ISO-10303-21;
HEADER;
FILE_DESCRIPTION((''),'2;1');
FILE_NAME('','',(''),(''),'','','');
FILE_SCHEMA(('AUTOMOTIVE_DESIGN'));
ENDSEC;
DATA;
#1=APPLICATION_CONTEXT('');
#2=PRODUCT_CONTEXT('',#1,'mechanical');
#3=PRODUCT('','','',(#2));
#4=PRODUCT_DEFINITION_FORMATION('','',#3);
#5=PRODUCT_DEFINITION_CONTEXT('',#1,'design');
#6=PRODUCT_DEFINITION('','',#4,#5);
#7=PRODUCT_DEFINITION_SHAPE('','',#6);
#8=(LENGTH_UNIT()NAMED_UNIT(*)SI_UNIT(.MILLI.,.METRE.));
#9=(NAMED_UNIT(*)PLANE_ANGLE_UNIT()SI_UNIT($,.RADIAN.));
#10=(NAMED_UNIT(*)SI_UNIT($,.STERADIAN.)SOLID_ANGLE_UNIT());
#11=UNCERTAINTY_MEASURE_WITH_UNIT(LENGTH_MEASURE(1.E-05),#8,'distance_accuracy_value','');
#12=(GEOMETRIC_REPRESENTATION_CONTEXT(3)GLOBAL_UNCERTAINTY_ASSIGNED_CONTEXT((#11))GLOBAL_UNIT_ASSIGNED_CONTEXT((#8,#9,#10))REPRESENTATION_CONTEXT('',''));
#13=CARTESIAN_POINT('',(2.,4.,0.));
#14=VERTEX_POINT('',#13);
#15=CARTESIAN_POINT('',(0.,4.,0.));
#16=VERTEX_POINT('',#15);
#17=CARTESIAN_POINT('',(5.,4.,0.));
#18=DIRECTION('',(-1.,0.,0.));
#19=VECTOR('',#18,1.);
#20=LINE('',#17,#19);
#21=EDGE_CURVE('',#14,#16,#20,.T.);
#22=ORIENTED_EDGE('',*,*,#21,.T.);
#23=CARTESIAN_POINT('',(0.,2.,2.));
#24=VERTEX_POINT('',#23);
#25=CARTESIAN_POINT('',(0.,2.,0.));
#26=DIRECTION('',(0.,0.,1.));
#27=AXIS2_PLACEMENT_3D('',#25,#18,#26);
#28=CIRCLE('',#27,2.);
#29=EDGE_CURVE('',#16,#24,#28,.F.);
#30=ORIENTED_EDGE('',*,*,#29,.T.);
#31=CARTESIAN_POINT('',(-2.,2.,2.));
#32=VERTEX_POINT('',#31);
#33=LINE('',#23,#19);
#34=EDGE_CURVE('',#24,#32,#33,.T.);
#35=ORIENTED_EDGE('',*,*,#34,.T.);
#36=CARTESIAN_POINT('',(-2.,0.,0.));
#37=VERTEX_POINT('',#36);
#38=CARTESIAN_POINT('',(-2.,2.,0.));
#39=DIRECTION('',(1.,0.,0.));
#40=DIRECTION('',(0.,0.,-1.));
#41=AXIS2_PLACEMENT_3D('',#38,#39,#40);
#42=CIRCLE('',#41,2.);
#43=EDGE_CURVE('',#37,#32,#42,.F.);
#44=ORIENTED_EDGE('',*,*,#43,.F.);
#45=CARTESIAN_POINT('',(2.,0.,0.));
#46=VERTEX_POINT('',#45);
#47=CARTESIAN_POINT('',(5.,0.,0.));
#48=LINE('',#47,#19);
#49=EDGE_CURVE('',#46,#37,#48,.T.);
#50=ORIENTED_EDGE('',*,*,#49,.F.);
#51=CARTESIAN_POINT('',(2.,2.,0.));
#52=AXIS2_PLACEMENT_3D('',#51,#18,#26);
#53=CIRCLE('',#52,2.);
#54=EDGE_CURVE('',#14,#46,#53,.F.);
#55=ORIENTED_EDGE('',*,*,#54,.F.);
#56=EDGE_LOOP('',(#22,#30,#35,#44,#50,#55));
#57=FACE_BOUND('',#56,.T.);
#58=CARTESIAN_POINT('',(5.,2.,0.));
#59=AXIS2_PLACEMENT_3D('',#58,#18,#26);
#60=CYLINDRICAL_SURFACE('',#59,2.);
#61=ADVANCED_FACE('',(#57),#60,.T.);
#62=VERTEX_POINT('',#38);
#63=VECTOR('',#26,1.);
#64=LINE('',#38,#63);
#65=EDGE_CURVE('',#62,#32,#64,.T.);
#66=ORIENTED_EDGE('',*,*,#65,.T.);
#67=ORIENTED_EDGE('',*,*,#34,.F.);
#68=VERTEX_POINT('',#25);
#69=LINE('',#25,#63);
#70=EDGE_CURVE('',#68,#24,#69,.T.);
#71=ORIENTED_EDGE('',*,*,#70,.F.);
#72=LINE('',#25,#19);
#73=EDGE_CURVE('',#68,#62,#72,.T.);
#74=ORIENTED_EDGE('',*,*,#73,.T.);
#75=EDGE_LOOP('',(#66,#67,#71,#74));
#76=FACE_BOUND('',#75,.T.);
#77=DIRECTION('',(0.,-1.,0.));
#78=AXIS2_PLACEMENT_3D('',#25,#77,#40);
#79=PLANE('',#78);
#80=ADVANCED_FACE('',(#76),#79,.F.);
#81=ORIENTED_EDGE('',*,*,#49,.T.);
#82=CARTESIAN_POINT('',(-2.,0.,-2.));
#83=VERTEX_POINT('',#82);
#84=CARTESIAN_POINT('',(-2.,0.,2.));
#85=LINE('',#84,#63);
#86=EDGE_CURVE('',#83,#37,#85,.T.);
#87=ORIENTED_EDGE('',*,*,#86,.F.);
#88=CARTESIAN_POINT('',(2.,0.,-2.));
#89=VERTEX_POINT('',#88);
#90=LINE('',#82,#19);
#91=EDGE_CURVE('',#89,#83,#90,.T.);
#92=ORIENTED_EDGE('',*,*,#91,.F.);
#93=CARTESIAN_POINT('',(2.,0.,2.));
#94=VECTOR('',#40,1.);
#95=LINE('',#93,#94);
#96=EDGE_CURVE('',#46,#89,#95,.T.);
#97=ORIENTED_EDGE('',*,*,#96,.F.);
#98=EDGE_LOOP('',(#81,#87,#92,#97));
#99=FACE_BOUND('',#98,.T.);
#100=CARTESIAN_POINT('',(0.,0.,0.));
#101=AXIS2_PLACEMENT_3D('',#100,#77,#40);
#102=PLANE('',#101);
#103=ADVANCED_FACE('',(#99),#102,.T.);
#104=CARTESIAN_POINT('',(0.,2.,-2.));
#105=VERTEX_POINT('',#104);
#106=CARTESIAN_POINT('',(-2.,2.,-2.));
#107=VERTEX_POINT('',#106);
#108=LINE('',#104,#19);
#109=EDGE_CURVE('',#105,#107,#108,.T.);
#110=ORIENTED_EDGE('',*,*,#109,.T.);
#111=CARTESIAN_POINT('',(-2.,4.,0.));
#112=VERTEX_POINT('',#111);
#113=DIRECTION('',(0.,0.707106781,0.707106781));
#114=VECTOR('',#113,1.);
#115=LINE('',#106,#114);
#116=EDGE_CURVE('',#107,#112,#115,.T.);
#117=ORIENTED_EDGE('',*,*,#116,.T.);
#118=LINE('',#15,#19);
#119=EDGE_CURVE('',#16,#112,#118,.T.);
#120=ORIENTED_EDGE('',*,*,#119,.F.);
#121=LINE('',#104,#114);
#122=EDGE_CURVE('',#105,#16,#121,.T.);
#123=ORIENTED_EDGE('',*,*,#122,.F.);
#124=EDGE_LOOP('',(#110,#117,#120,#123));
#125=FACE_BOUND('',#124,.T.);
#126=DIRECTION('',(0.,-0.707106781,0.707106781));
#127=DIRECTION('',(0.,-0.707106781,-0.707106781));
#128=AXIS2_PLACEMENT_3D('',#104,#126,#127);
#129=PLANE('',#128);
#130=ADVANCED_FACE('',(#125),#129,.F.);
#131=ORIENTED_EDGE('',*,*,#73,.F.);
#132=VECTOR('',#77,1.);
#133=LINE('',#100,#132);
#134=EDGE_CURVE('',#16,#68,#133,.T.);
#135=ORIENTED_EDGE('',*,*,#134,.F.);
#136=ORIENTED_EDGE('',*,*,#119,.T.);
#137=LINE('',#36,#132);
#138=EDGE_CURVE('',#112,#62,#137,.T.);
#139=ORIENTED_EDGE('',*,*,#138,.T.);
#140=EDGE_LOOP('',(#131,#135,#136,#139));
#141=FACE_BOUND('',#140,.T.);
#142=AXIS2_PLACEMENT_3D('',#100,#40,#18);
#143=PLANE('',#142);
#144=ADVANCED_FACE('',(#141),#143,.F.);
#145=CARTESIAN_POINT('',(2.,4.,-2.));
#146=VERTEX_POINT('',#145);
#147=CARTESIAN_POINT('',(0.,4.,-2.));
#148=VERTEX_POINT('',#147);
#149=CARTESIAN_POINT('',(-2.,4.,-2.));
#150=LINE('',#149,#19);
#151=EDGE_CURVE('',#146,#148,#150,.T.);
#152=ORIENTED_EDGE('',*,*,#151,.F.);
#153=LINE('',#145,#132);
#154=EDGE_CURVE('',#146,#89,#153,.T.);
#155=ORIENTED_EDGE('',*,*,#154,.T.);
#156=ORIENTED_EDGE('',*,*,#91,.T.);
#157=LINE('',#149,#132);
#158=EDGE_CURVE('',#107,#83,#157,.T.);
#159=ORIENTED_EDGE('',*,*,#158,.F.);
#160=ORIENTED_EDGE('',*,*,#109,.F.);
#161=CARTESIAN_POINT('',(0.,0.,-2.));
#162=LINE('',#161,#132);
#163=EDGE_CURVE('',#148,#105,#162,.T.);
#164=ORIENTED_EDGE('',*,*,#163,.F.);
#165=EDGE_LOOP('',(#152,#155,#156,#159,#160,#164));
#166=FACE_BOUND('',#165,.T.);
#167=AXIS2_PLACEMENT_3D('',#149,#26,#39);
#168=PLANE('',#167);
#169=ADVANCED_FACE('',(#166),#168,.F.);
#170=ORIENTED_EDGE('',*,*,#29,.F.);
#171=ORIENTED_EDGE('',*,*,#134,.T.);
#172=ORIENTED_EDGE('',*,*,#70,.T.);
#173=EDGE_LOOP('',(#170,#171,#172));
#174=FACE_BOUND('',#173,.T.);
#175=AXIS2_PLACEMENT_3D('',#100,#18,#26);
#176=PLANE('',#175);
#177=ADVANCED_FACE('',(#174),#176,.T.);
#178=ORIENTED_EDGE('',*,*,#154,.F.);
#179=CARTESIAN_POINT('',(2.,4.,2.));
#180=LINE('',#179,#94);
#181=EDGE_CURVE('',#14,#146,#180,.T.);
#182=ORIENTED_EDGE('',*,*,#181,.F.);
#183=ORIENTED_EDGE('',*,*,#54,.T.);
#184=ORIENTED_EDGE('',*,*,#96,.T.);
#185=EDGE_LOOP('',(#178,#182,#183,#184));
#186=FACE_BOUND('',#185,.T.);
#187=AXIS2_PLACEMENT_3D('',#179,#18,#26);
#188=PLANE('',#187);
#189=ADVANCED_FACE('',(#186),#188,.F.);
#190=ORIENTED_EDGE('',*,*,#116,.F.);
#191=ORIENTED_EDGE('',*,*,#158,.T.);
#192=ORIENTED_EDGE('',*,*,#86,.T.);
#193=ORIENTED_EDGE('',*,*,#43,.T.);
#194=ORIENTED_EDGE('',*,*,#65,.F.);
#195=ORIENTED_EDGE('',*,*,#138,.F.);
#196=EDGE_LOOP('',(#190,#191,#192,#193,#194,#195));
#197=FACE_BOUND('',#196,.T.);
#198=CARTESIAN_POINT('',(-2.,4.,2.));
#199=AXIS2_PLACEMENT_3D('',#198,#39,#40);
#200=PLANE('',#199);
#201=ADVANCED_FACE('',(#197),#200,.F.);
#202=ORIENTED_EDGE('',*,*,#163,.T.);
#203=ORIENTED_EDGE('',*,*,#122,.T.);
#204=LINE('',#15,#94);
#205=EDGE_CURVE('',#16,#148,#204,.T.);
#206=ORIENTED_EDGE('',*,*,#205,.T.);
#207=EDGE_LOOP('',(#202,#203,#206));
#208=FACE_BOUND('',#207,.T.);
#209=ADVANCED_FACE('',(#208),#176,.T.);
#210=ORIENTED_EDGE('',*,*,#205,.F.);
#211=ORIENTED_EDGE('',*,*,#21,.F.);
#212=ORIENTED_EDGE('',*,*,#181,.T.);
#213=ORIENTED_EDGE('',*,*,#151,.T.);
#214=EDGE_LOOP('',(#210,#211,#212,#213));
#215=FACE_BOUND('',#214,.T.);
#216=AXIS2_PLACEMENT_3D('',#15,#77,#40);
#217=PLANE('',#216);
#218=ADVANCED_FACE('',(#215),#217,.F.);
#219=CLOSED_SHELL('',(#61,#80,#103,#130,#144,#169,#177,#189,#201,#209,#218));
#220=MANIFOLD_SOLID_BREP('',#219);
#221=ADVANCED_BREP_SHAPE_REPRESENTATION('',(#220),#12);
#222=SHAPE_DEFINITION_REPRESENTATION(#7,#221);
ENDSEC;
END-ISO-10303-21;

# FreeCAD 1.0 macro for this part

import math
import FreeCAD as App
import Part
import Sketcher
from FreeCAD import Vector
Q = App.Units.Quantity

doc = App.newDocument("Part")
body = doc.addObject("PartDesign::Body", "Body")

# Sketch on XZ plane
sketch1 = body.newObject("Sketcher::SketchObject", "Sketch")
sketch1.AttachmentSupport = (doc.getObject("XZ_Plane"), [""])
sketch1.MapMode = "FlatFace"
sketch1.addGeometry([
    Part.LineSegment(Vector(-2, -2, 0), Vector(-2, 2, 0)),
    Part.LineSegment(Vector(-2, 2, 0), Vector(2, 2, 0)),
    Part.LineSegment(Vector(2, 2, 0), Vector(2, -2, 0)),
    Part.LineSegment(Vector(2, -2, 0), Vector(-2, -2, 0)),
], False)
sketch1.addConstraint([
    Sketcher.Constraint("Coincident", 0, 2, 1, 1),
    Sketcher.Constraint("Coincident", 1, 2, 2, 1),
    Sketcher.Constraint("Coincident", 2, 2, 3, 1),
    Sketcher.Constraint("Coincident", 3, 2, 0, 1),
    Sketcher.Constraint("Vertical", 0),
    Sketcher.Constraint("Horizontal", 1),
    Sketcher.Constraint("Vertical", 2),
    Sketcher.Constraint("Horizontal", 3),
    Sketcher.Constraint("Symmetric", 0, 2, 2, 2, -1, 1),
    Sketcher.Constraint("Equal", 3, 0),
    Sketcher.Constraint("DistanceX", 1, 1, 1, 2, Q("4 mm")),
])
pad1 = body.newObject("PartDesign::Pad", "Pad")
pad1.Profile = sketch1
pad1.Length = 4
pad1.Reversed = True

# Sketch on YZ plane
sketch2 = body.newObject("Sketcher::SketchObject", "Sketch001")
sketch2.AttachmentSupport = (doc.getObject("YZ_Plane"), [""])
sketch2.MapMode = "FlatFace"
sketch2.AttachmentOffset = App.Placement(Vector(0, 0, -2), App.Rotation())
sketch2.addGeometry([
    Part.LineSegment(Vector(4, -2, 0), Vector(2, -2, 0)),  # 0
    Part.LineSegment(Vector(2, -2, 0), Vector(4, 0, 0)),  # 1
    Part.LineSegment(Vector(4, 0, 0), Vector(4, -2, 0)),  # 2
    Part.LineSegment(Vector(4, 0, 0), Vector(2, 0, 0)),  # 3
    Part.LineSegment(Vector(2, 0, 0), Vector(2, 2, 0)),  # 4
    Part.LineSegment(Vector(2, 2, 0), Vector(4, 2, 0)),  # 5
    Part.LineSegment(Vector(4, 2, 0), Vector(4, 0, 0)),  # 6
], False)
sketch2.addConstraint([
    Sketcher.Constraint("Coincident", 0, 2, 1, 1),
    Sketcher.Constraint("Coincident", 1, 2, 2, 1),
    Sketcher.Constraint("Coincident", 2, 2, 0, 1),
    Sketcher.Constraint("Coincident", 3, 2, 4, 1),
    Sketcher.Constraint("Coincident", 4, 2, 5, 1),
    Sketcher.Constraint("Coincident", 5, 2, 6, 1),
    Sketcher.Constraint("Coincident", 6, 2, 3, 1),
    Sketcher.Constraint("Horizontal", 0),
    Sketcher.Constraint("Vertical", 2),
    Sketcher.Constraint("Horizontal", 3),
    Sketcher.Constraint("Vertical", 4),
    Sketcher.Constraint("Horizontal", 5),
    Sketcher.Constraint("Vertical", 6),
    Sketcher.Constraint("Coincident", 6, 2, 1, 2),
    Sketcher.Constraint("Symmetric", 0, 2, 4, 2, -1),
    Sketcher.Constraint("PointOnObject", 1, 2, -1),
    Sketcher.Constraint("Equal", 5, 2),
    Sketcher.Constraint("DistanceX", 0, 2, 0, 1, Q("2 mm")),
    Sketcher.Constraint("DistanceX", -1, 1, 0, 2, Q("2 mm")),
])
pocket1 = body.newObject("PartDesign::Pocket", "Pocket")
pocket1.Profile = sketch2
pocket1.Length = 2
pocket1.Reversed = True

# Sketch on YZ plane
sketch3 = body.newObject("Sketcher::SketchObject", "Sketch002")
sketch3.AttachmentSupport = (doc.getObject("YZ_Plane"), [""])
sketch3.MapMode = "FlatFace"
sketch3.addGeometry([
    Part.ArcOfCircle(Part.Circle(Vector(2, 0, 0), Vector(0, 0, 1), 2), math.radians(0), math.radians(90)),  # 0
    Part.LineSegment(Vector(2, 2, 0), Vector(4, 2, 0)),  # 1
    Part.LineSegment(Vector(4, 2, 0), Vector(4, 0, 0)),  # 2
    Part.LineSegment(Vector(0, 2, 0), Vector(2, 2, 0)),  # 3
    Part.ArcOfCircle(Part.Circle(Vector(2, 0, 0), Vector(0, 0, 1), 2), math.radians(90), math.radians(180)),  # 4
    Part.LineSegment(Vector(0, 0, 0), Vector(0, 2, 0)),  # 5
], False)
sketch3.addConstraint([
    Sketcher.Constraint("Tangent", 0, 2, 1, 1),
    Sketcher.Constraint("Coincident", 1, 2, 2, 1),
    Sketcher.Constraint("Tangent", 2, 2, 0, 1),
    Sketcher.Constraint("Tangent", 3, 2, 4, 1),
    Sketcher.Constraint("Tangent", 4, 2, 5, 1),
    Sketcher.Constraint("Coincident", 5, 2, 3, 1),
    Sketcher.Constraint("Horizontal", 1),
    Sketcher.Constraint("Vertical", 2),
    Sketcher.Constraint("Horizontal", 3),
    Sketcher.Constraint("Vertical", 5),
    Sketcher.Constraint("Coincident", 4, 2, -1, 1),
    Sketcher.Constraint("Coincident", 4, 3, 0, 3),
    Sketcher.Constraint("Equal", 0, 4),
    Sketcher.Constraint("Radius", 0, Q("2 mm")),
])
pocket2 = body.newObject("PartDesign::Pocket", "Pocket001")
pocket2.Profile = sketch3
pocket2.Length = 10
pocket2.Midplane = True

doc.recompute()
